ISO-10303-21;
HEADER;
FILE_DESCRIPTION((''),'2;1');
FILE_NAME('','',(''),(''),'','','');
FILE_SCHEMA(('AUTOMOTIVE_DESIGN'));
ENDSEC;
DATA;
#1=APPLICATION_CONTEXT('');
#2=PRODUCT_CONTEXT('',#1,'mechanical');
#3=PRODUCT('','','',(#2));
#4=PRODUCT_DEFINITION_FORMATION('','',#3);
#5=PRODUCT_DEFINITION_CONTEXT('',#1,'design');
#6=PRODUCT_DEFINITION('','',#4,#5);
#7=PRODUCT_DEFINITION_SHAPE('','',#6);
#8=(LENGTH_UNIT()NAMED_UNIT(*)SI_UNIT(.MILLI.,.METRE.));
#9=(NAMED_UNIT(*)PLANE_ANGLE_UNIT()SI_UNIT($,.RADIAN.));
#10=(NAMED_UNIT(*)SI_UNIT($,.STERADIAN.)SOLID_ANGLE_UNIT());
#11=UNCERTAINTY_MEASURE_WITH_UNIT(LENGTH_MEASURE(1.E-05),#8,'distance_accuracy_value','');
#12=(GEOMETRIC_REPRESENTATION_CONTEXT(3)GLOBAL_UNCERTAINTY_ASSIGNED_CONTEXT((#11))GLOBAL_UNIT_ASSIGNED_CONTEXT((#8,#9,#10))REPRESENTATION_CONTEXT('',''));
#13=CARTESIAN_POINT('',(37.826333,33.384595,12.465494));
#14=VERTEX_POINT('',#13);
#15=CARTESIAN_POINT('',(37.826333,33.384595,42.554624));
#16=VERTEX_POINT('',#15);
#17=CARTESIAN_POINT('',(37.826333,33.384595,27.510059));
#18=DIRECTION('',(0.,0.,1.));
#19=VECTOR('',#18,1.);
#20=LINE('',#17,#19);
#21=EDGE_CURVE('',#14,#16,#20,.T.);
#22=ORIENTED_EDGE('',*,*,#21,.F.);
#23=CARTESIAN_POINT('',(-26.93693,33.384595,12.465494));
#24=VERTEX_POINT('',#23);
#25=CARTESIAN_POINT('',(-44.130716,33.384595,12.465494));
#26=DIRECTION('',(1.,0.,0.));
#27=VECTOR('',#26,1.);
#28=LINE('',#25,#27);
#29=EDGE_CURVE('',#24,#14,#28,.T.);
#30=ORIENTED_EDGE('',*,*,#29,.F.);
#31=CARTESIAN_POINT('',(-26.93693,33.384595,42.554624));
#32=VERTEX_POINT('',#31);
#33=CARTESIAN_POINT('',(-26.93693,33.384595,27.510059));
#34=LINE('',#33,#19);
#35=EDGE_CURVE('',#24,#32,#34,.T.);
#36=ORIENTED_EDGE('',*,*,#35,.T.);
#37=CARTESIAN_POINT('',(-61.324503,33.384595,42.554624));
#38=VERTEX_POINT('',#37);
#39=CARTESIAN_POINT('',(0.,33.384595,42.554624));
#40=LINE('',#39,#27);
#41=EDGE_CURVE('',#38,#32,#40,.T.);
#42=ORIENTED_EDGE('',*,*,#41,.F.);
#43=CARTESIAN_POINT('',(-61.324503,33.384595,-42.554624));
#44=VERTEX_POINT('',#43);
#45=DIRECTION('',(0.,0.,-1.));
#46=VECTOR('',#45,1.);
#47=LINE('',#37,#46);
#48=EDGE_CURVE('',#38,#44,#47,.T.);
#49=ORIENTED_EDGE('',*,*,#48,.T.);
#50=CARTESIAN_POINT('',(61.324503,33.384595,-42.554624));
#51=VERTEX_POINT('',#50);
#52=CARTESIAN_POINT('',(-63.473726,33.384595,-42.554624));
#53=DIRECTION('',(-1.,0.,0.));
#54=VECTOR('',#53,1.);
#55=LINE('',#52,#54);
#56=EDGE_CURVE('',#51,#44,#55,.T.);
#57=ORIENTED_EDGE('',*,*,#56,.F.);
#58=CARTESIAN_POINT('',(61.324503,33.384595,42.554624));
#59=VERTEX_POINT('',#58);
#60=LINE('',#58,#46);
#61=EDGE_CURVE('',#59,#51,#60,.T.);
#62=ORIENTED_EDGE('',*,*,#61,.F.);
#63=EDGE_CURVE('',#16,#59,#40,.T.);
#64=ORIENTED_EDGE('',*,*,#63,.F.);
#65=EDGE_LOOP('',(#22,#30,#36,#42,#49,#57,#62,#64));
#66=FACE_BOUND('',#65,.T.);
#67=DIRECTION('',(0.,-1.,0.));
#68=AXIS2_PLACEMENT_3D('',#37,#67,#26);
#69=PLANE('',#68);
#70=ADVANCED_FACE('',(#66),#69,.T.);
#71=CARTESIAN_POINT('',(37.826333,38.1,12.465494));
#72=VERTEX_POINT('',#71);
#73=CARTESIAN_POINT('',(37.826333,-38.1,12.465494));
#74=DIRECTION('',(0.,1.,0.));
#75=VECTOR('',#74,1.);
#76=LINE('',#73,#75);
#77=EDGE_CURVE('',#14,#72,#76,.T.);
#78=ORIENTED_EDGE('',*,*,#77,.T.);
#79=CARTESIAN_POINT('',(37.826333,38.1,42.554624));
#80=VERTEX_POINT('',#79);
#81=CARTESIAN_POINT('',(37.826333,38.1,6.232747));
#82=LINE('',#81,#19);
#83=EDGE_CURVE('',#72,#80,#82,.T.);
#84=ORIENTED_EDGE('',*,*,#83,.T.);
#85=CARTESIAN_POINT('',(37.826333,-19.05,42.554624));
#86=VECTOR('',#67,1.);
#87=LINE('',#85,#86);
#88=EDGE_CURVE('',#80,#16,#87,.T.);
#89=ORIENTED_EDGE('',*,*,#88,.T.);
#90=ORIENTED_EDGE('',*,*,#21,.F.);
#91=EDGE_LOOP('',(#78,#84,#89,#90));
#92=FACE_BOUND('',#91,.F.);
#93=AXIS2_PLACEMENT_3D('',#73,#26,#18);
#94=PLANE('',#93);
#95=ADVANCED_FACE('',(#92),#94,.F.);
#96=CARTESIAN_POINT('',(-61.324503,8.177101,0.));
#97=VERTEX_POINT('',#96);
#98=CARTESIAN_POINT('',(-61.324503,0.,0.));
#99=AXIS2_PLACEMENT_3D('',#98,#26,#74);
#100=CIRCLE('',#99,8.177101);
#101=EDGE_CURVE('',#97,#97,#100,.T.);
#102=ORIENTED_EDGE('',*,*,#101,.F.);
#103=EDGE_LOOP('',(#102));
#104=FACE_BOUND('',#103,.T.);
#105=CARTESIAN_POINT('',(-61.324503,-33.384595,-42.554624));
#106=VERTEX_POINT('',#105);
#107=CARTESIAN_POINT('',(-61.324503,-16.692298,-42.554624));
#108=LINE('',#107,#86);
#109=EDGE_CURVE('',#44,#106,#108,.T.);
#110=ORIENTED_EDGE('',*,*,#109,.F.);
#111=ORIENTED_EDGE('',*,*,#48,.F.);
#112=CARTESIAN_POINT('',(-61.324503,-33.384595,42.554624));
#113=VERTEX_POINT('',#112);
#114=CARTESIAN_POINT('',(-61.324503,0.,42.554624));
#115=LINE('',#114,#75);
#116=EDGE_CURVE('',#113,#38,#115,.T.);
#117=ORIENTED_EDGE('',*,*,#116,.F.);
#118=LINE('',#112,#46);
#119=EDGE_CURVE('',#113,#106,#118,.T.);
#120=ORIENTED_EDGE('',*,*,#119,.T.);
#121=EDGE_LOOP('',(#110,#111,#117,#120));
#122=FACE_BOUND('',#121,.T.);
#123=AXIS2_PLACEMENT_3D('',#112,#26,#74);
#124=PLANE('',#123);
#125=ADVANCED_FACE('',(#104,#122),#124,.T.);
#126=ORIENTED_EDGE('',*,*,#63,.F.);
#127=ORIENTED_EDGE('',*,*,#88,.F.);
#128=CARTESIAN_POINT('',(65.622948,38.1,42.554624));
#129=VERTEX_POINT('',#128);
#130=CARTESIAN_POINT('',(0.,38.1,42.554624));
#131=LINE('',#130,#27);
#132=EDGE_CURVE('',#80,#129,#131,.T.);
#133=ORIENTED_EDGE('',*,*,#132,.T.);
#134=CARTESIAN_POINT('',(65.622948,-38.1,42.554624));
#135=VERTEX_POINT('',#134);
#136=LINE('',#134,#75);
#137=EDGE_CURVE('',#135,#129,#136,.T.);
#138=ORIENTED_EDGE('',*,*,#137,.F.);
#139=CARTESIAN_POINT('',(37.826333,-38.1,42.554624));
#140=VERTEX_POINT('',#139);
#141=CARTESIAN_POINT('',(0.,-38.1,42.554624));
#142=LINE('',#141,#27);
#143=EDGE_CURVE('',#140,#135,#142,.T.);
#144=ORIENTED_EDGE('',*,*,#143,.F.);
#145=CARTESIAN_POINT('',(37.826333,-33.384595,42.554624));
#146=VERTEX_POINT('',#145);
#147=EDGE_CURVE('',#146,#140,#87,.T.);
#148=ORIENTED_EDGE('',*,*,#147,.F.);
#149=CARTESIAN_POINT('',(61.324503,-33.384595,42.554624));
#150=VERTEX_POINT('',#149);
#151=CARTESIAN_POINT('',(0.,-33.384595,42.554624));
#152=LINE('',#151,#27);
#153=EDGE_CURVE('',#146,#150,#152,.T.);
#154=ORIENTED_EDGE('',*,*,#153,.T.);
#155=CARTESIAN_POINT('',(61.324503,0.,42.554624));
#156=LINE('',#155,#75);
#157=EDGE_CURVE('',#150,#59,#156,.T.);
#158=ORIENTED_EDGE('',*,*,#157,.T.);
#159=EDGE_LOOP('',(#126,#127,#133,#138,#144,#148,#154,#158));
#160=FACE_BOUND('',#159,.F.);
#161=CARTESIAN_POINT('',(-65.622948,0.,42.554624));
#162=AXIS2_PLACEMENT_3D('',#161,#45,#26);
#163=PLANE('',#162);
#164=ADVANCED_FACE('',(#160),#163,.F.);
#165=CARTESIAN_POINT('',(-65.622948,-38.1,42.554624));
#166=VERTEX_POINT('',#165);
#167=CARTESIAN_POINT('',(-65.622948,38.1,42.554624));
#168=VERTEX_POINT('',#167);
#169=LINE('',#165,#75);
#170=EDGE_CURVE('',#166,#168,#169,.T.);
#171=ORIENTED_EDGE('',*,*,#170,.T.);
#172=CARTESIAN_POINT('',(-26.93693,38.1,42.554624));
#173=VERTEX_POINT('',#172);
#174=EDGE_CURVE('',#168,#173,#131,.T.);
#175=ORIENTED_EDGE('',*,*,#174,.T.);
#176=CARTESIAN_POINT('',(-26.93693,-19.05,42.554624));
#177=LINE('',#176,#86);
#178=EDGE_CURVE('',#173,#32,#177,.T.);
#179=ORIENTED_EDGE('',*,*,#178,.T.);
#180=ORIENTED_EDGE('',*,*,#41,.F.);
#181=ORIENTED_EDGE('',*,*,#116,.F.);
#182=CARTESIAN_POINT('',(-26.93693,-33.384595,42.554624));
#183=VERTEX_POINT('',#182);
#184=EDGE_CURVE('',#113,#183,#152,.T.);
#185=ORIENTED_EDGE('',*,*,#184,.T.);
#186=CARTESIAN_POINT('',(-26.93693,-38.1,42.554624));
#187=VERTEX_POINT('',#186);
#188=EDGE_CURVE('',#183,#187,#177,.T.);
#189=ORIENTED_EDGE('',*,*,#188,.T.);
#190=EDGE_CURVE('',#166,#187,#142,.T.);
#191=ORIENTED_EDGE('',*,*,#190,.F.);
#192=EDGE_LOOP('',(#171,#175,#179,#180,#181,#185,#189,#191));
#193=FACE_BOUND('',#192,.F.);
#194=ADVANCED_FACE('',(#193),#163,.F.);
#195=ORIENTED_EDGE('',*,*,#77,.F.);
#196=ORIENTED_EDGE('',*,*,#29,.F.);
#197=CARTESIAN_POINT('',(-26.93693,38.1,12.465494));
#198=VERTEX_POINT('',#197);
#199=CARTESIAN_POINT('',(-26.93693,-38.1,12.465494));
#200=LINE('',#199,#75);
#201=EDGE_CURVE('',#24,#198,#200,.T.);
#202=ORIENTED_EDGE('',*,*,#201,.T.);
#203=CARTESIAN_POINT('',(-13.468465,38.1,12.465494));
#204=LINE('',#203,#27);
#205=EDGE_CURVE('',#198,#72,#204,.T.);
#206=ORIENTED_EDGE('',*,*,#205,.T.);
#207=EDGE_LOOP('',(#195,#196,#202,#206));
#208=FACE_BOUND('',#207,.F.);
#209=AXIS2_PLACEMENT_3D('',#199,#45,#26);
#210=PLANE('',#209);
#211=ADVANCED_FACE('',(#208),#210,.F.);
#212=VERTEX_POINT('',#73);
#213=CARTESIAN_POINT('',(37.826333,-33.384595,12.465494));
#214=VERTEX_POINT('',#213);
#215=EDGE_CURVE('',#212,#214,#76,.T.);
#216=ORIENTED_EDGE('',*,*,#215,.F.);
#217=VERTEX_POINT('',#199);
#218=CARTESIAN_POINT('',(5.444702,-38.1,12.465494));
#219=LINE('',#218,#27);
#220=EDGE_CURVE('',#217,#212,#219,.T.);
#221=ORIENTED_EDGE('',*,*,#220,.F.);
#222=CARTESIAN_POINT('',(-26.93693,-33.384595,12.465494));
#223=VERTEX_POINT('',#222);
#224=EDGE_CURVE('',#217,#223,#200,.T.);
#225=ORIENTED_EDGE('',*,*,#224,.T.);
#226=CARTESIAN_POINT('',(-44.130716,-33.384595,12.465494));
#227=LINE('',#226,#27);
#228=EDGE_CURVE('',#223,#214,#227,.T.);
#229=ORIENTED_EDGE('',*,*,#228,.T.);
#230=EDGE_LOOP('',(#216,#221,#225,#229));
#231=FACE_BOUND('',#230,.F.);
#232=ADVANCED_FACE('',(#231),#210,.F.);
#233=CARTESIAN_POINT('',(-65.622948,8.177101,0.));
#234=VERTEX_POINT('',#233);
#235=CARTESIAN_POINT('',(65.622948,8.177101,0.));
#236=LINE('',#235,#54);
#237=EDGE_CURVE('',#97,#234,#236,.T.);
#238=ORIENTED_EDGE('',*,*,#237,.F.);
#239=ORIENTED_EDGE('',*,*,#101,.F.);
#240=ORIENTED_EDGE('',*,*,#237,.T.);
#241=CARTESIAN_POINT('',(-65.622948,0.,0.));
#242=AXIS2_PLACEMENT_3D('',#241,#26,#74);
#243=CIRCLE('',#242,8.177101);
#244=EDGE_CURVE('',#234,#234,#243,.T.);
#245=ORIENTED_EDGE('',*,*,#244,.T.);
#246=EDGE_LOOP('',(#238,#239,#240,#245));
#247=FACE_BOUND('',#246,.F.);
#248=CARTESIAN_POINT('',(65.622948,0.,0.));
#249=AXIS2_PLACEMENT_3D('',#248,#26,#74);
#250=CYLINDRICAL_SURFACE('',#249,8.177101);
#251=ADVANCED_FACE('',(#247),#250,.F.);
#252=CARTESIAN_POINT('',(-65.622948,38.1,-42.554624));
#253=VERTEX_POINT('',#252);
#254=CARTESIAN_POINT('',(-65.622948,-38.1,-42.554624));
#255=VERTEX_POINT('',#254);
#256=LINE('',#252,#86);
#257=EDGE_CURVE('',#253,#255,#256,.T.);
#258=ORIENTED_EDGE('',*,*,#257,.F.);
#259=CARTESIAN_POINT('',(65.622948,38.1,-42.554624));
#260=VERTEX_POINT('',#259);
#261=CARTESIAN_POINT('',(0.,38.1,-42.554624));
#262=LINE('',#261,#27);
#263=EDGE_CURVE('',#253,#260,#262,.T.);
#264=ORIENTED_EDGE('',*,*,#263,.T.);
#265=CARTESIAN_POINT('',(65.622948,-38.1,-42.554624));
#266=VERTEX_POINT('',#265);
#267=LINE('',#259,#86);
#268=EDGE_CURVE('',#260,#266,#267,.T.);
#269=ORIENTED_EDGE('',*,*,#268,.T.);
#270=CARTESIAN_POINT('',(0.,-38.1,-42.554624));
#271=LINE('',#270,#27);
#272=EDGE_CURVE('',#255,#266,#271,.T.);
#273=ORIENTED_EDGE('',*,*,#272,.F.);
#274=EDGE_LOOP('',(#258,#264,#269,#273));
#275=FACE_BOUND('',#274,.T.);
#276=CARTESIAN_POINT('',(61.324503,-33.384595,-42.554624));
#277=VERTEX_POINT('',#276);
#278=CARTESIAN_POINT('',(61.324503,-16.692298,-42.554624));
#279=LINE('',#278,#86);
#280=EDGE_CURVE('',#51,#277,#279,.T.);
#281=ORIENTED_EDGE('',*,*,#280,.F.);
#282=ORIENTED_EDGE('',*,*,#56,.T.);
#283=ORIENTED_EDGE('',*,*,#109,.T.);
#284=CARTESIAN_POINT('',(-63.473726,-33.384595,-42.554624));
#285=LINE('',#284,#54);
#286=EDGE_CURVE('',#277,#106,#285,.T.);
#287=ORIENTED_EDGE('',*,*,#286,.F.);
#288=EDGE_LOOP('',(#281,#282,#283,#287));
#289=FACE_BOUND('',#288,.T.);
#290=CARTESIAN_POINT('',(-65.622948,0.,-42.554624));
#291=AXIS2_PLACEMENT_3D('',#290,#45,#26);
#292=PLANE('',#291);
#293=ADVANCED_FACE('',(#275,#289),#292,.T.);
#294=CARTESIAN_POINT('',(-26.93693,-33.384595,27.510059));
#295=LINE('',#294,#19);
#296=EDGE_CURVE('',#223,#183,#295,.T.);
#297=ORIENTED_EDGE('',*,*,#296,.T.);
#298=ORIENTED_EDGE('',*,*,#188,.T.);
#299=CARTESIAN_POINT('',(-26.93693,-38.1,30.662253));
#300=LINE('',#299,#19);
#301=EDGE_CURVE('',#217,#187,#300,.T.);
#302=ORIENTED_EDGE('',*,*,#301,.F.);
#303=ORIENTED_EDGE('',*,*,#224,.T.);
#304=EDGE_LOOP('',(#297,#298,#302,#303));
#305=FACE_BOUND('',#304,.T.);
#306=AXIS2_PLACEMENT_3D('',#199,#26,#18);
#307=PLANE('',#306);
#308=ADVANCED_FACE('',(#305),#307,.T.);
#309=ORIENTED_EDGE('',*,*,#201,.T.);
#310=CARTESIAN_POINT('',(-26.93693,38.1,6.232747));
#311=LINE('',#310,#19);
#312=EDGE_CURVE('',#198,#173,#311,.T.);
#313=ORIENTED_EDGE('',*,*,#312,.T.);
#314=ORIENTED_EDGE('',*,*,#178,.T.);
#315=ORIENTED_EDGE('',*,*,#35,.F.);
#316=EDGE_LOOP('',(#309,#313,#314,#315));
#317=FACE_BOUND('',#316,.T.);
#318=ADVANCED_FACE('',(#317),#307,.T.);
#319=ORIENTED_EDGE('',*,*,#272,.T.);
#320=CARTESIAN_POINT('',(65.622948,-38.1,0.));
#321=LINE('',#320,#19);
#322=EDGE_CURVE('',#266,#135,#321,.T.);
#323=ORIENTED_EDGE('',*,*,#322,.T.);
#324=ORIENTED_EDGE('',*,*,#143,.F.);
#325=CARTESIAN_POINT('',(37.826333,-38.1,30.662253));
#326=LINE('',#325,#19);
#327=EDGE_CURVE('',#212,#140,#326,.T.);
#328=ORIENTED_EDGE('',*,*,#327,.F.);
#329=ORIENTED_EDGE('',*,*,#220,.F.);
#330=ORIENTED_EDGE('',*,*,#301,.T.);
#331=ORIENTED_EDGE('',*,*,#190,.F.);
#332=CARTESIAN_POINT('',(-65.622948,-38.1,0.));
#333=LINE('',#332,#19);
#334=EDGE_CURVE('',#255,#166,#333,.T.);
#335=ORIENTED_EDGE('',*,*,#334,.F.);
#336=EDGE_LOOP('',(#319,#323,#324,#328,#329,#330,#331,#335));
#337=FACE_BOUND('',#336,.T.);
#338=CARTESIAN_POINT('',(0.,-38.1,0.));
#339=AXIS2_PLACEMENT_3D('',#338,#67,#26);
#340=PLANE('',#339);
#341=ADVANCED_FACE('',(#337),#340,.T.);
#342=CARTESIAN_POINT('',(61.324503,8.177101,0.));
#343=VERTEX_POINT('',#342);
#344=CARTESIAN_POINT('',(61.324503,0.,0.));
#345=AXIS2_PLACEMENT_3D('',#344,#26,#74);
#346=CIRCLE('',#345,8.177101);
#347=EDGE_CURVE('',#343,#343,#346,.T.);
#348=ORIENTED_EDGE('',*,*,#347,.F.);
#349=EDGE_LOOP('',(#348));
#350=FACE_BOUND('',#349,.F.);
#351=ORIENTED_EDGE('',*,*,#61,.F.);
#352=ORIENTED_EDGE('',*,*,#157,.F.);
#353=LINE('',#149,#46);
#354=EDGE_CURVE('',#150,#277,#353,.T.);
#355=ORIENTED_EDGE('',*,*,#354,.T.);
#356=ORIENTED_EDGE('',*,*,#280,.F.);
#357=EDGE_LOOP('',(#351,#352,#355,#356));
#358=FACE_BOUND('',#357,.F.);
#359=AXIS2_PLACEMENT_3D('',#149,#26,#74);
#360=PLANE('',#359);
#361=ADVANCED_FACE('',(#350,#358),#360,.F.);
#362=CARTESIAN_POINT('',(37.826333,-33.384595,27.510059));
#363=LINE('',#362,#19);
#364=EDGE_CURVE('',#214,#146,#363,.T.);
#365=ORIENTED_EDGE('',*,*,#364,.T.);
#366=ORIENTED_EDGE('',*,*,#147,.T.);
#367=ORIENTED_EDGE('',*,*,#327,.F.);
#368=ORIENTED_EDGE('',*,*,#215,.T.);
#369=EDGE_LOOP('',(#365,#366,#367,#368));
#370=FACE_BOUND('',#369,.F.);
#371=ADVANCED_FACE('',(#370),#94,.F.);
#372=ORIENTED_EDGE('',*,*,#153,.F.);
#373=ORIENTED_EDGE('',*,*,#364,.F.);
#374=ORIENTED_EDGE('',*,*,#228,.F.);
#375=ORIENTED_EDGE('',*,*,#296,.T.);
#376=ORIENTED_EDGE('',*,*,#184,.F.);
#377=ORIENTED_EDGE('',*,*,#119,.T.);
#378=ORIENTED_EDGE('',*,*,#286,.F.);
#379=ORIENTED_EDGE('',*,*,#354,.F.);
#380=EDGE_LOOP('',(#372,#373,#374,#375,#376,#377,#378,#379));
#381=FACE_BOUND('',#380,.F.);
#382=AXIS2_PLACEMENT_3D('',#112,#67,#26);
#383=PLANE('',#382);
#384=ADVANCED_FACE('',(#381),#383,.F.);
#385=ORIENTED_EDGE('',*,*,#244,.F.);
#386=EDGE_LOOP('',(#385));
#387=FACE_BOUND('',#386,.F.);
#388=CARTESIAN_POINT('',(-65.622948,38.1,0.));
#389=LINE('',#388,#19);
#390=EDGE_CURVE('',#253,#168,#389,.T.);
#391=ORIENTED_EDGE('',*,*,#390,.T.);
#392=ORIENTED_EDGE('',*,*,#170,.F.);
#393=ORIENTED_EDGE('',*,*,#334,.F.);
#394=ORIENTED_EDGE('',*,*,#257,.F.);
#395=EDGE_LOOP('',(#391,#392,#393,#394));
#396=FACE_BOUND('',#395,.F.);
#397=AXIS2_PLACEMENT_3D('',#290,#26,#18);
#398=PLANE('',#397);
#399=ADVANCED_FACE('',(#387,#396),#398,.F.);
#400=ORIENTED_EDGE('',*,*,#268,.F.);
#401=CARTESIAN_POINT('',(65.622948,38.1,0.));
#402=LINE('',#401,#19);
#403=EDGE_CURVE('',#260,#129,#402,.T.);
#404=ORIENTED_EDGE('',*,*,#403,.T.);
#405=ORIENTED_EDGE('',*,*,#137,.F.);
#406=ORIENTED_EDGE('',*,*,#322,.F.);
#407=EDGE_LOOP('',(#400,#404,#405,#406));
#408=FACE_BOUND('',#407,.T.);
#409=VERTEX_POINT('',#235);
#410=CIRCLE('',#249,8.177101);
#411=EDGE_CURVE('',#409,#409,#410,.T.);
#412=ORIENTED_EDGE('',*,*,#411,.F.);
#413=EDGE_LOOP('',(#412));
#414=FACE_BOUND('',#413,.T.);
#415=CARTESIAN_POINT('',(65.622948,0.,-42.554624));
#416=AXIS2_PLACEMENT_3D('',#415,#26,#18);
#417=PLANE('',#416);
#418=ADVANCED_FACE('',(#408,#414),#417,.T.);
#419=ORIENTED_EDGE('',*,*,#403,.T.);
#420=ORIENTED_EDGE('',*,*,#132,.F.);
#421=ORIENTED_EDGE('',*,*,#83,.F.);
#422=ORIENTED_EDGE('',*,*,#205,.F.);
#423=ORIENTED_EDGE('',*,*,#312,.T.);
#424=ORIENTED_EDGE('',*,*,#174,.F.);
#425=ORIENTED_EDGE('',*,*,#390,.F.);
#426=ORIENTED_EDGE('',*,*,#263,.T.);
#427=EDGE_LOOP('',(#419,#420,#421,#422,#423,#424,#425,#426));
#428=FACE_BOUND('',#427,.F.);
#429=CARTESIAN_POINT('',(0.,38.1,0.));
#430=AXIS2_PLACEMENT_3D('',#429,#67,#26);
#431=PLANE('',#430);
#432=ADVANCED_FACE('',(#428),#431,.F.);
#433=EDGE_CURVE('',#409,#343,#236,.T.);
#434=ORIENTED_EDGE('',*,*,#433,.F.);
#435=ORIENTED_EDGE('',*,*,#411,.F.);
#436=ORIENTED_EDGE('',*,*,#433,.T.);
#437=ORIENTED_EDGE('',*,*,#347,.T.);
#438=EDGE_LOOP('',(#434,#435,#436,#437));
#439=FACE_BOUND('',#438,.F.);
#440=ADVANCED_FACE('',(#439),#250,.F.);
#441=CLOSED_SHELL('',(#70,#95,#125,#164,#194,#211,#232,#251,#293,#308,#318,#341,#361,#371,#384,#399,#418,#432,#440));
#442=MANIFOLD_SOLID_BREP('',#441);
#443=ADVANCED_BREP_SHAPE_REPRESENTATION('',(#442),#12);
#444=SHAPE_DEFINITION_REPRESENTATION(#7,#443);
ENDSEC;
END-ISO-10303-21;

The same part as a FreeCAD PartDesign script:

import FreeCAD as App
import Part
import Sketcher
from FreeCAD import Vector
Q = App.Units.Quantity

doc = App.newDocument("Part")
params = doc.addObject("Spreadsheet::Sheet", "Params")
for row, (alias, value) in enumerate([
    ("pad1_length", "3 in"),
    ("pocket1_length", "4.33 in"),
    ("pocket2_length", "6.91 in"),
    ("pocket3_length", "4.44 in"),
], start=1):
    params.set(f"A{row}", alias)
    params.set(f"B{row}", "=" + value)
    params.setAlias(f"B{row}", alias)

body = doc.addObject("PartDesign::Body", "Body")

sketch1 = body.newObject("Sketcher::SketchObject", "Sketch")
sketch1.AttachmentSupport = (doc.getObject("XZ_Plane"), [""])
sketch1.MapMode = "FlatFace"
sketch1.addGeometry(Part.LineSegment(Vector(-66, 43, 0), Vector(-66, -43, 0)), False)
sketch1.addGeometry(Part.LineSegment(Vector(-66, -43, 0), Vector(66, -43, 0)), False)
sketch1.addGeometry(Part.LineSegment(Vector(66, -43, 0), Vector(66, 43, 0)), False)
sketch1.addGeometry(Part.LineSegment(Vector(66, 43, 0), Vector(-66, 43, 0)), False)
sketch1.addConstraint(Sketcher.Constraint("Coincident", 0, 2, 1, 1))
sketch1.addConstraint(Sketcher.Constraint("Coincident", 1, 2, 2, 1))
sketch1.addConstraint(Sketcher.Constraint("Coincident", 2, 2, 3, 1))
sketch1.addConstraint(Sketcher.Constraint("Coincident", 3, 2, 0, 1))
sketch1.addConstraint(Sketcher.Constraint("Vertical", 0))
sketch1.addConstraint(Sketcher.Constraint("Horizontal", 1))
sketch1.addConstraint(Sketcher.Constraint("Vertical", 2))
sketch1.addConstraint(Sketcher.Constraint("Horizontal", 3))
sketch1.addConstraint(Sketcher.Constraint("Symmetric", 0, 2, 2, 2, -1, 1))
sketch1.addConstraint(Sketcher.Constraint("DistanceY", 0, 2, 0, 1, Q("85.109249 mm")))
sketch1.addConstraint(Sketcher.Constraint("DistanceX", 1, 1, 1, 2, Q("131.245896 mm")))
pad1 = body.newObject("PartDesign::Pad", "Pad")
pad1.Profile = sketch1
pad1.setExpression("Length", "Params.pad1_length")
pad1.Midplane = True

sketch2 = body.newObject("Sketcher::SketchObject", "Sketch001")
sketch2.AttachmentSupport = (doc.getObject("XY_Plane"), [""])
sketch2.MapMode = "FlatFace"
sketch2.AttachmentOffset = App.Placement(Vector(0, 0, 42.554624), App.Rotation())
sketch2.addGeometry(Part.LineSegment(Vector(-61, 33, 0), Vector(-61, -33, 0)), False)
sketch2.addGeometry(Part.LineSegment(Vector(-61, -33, 0), Vector(61, -33, 0)), False)
sketch2.addGeometry(Part.LineSegment(Vector(61, -33, 0), Vector(61, 33, 0)), False)
sketch2.addGeometry(Part.LineSegment(Vector(61, 33, 0), Vector(-61, 33, 0)), False)
sketch2.addConstraint(Sketcher.Constraint("Coincident", 0, 2, 1, 1))
sketch2.addConstraint(Sketcher.Constraint("Coincident", 1, 2, 2, 1))
sketch2.addConstraint(Sketcher.Constraint("Coincident", 2, 2, 3, 1))
sketch2.addConstraint(Sketcher.Constraint("Coincident", 3, 2, 0, 1))
sketch2.addConstraint(Sketcher.Constraint("Vertical", 0))
sketch2.addConstraint(Sketcher.Constraint("Horizontal", 1))
sketch2.addConstraint(Sketcher.Constraint("Vertical", 2))
sketch2.addConstraint(Sketcher.Constraint("Horizontal", 3))
sketch2.addConstraint(Sketcher.Constraint("Symmetric", 0, 2, 2, 2, -1, 1))
sketch2.addConstraint(Sketcher.Constraint("DistanceY", 0, 2, 0, 1, Q("66.76919 mm")))
sketch2.addConstraint(Sketcher.Constraint("DistanceX", 1, 1, 1, 2, Q("122.649007 mm")))
pocket1 = body.newObject("PartDesign::Pocket", "Pocket")
pocket1.Profile = sketch2
pocket1.setExpression("Length", "Params.pocket1_length")

sketch3 = body.newObject("Sketcher::SketchObject", "Sketch002")
sketch3.AttachmentSupport = (doc.getObject("YZ_Plane"), [""])
sketch3.MapMode = "FlatFace"
sketch3.AttachmentOffset = App.Placement(Vector(0, 0, 65.622948), App.Rotation())
sketch3.addGeometry(Part.Circle(Vector(0, 0, 0), Vector(0, 0, 1), 8), False)
sketch3.addConstraint(Sketcher.Constraint("Coincident", 0, 3, -1, 1))
sketch3.addConstraint(Sketcher.Constraint("Diameter", 0, Q("16.354201 mm")))
pocket2 = body.newObject("PartDesign::Pocket", "Pocket001")
pocket2.Profile = sketch3
pocket2.setExpression("Length", "Params.pocket2_length")

sketch4 = body.newObject("Sketcher::SketchObject", "Sketch003")
sketch4.AttachmentSupport = (doc.getObject("XZ_Plane"), [""])
sketch4.MapMode = "FlatFace"
sketch4.AttachmentOffset = App.Placement(Vector(0, 0, 1.5 * 25.4), App.Rotation())
sketch4.addGeometry(Part.LineSegment(Vector(-27, 49, 0), Vector(-27, 12, 0)), False)
sketch4.addGeometry(Part.LineSegment(Vector(-27, 12, 0), Vector(38, 12, 0)), False)
sketch4.addGeometry(Part.LineSegment(Vector(38, 12, 0), Vector(38, 49, 0)), False)
sketch4.addGeometry(Part.LineSegment(Vector(38, 49, 0), Vector(-27, 49, 0)), False)
sketch4.addConstraint(Sketcher.Constraint("Coincident", 0, 2, 1, 1))
sketch4.addConstraint(Sketcher.Constraint("Coincident", 1, 2, 2, 1))
sketch4.addConstraint(Sketcher.Constraint("Coincident", 2, 2, 3, 1))
sketch4.addConstraint(Sketcher.Constraint("Coincident", 3, 2, 0, 1))
sketch4.addConstraint(Sketcher.Constraint("Vertical", 0))
sketch4.addConstraint(Sketcher.Constraint("Horizontal", 1))
sketch4.addConstraint(Sketcher.Constraint("Vertical", 2))
sketch4.addConstraint(Sketcher.Constraint("Horizontal", 3))
sketch4.addConstraint(Sketcher.Constraint("DistanceX", 1, 1, 1, 2, Q("64.763263 mm")))
sketch4.addConstraint(Sketcher.Constraint("DistanceY", 0, 2, 0, 1, Q("36.393518 mm")))
sketch4.addConstraint(Sketcher.Constraint("DistanceX", 0, 2, -1, 1, Q("26.93693 mm")))
sketch4.addConstraint(Sketcher.Constraint("DistanceY", -1, 1, 2, 2, Q("48.859011 mm")))
pocket3 = body.newObject("PartDesign::Pocket", "Pocket002")
pocket3.Profile = sketch4
pocket3.setExpression("Length", "Params.pocket3_length")

doc.recompute()
